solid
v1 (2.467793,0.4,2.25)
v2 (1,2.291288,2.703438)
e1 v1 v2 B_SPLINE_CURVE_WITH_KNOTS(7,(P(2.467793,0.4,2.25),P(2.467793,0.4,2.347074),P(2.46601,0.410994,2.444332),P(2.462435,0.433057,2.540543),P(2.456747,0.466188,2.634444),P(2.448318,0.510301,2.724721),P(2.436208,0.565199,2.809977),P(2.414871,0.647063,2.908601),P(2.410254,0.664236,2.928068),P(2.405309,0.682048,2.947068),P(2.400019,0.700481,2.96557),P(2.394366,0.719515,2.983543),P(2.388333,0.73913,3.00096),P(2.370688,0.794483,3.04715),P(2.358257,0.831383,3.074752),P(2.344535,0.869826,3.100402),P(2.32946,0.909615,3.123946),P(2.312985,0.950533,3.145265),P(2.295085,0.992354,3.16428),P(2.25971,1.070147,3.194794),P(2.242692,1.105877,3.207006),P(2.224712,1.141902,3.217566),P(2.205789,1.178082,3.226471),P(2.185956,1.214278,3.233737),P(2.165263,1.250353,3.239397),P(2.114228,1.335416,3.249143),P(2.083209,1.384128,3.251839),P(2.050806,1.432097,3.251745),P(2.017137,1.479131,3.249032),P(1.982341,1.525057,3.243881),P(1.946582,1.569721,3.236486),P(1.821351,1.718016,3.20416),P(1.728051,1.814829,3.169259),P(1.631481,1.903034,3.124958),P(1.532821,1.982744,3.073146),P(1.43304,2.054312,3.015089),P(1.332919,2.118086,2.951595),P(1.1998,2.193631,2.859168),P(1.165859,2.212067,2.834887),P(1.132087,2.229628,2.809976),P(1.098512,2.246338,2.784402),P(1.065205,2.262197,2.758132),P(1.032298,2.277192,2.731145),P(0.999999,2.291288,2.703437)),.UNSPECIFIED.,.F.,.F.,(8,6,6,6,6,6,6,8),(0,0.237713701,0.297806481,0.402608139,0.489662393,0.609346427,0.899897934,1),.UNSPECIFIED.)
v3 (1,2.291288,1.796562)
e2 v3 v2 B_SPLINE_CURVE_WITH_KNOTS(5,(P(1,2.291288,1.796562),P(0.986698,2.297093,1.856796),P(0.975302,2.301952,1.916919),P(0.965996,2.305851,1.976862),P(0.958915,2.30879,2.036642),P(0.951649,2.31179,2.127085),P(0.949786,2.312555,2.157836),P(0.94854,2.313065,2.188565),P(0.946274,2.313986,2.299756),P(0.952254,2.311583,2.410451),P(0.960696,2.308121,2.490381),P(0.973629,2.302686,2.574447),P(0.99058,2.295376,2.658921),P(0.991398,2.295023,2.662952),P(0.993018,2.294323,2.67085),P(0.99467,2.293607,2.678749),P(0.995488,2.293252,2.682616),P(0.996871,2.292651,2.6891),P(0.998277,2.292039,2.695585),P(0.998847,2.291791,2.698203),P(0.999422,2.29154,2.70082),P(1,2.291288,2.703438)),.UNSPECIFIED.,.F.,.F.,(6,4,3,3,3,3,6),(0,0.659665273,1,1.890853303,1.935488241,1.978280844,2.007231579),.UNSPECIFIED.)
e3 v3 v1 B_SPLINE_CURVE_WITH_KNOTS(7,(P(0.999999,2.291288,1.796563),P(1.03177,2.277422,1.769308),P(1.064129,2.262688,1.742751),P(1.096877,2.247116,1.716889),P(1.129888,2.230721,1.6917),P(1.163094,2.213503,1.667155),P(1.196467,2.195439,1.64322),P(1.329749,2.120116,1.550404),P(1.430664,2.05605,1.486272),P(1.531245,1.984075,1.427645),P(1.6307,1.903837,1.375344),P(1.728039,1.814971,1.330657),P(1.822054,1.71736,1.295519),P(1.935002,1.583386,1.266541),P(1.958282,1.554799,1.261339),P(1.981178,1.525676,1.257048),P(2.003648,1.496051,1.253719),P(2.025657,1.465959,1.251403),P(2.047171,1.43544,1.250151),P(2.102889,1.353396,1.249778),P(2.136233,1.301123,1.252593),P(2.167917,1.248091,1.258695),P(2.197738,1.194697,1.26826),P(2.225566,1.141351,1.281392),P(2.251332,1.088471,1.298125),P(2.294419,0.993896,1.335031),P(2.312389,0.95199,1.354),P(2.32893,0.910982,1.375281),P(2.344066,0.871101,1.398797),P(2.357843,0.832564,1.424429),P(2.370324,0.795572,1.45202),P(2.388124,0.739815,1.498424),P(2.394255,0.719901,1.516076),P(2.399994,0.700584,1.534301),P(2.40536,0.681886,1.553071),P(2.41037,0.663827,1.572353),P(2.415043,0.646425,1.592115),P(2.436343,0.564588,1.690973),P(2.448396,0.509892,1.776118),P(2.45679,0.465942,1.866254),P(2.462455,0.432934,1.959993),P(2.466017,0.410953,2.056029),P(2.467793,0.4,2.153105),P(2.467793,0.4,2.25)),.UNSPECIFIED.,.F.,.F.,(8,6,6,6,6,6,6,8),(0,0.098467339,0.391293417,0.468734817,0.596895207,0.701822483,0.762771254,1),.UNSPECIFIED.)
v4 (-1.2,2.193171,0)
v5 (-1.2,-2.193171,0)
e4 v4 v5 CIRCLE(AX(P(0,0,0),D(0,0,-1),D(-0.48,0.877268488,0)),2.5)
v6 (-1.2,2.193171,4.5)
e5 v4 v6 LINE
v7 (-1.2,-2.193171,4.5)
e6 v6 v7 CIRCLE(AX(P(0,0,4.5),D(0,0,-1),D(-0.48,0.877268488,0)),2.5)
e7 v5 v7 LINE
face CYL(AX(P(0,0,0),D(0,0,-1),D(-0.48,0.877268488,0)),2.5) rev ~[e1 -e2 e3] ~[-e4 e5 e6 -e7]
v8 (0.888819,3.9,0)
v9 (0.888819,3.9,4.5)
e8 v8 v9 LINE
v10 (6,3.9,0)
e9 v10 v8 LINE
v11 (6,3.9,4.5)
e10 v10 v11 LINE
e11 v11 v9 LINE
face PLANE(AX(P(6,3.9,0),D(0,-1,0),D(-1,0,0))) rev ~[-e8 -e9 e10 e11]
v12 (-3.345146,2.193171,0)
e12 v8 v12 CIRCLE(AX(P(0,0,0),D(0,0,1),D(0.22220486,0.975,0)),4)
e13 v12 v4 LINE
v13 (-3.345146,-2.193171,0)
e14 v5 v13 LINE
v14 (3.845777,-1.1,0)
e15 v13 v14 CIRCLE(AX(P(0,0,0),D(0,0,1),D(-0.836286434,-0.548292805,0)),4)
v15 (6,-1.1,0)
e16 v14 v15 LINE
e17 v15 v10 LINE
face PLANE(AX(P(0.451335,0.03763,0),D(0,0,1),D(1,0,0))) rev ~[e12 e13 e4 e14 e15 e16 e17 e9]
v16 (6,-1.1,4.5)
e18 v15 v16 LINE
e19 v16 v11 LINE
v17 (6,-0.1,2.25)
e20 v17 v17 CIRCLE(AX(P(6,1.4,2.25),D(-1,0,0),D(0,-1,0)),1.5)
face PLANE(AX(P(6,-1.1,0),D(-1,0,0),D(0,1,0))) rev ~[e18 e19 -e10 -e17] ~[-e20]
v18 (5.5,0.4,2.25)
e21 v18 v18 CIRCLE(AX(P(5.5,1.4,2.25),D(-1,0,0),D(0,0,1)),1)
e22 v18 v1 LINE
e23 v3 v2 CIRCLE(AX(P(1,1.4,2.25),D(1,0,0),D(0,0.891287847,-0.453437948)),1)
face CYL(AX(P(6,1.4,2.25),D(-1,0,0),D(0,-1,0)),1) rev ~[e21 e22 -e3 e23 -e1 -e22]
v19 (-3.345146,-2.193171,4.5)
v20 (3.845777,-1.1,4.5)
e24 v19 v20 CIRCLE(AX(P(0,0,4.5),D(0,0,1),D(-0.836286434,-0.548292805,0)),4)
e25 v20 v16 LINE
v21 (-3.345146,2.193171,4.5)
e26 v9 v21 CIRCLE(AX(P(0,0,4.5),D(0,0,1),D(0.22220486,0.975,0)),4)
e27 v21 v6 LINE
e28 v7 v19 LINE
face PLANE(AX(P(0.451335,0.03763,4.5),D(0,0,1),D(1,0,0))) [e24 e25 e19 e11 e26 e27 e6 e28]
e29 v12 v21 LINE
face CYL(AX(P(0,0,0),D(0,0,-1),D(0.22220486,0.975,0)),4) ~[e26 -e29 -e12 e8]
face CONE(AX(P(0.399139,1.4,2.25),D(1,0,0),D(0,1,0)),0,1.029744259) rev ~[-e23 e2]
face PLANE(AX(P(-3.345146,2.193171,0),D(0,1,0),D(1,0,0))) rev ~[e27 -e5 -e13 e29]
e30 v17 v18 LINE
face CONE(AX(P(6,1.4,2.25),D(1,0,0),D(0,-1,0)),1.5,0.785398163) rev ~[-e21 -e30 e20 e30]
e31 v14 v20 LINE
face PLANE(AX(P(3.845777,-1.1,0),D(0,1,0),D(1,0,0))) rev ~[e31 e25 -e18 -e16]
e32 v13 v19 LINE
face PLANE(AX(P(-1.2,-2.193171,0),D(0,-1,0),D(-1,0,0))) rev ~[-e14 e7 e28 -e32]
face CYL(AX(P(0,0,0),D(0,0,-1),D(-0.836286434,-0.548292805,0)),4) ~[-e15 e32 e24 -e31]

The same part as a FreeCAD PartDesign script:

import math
import FreeCAD as App
import Part
import Sketcher
from FreeCAD import Vector

doc = App.newDocument("Part")
body = doc.addObject("PartDesign::Body", "Body")

sketch1 = body.newObject("Sketcher::SketchObject", "Sketch")
sketch1.AttachmentSupport = (doc.getObject("XY_Plane"), [""])
sketch1.MapMode = "FlatFace"
sketch1.addGeometry([
    Part.ArcOfCircle(Part.Circle(Vector(0, 0, 0), Vector(0, 0, 1), 2.5), math.radians(-119), math.radians(119)),
    Part.LineSegment(Vector(-1.2, -2.2, 0), Vector(-3.3, -2.2, 0)),
    Part.ArcOfCircle(Part.Circle(Vector(0, 0, 0), Vector(0, 0, 1), 4), math.radians(-147), math.radians(-16)),
    Part.LineSegment(Vector(3.8, -1.1, 0), Vector(6, -1.1, 0)),
    Part.LineSegment(Vector(6, -1.1, 0), Vector(6, 3.9, 0)),
    Part.LineSegment(Vector(6, 3.9, 0), Vector(0.9, 3.9, 0)),
    Part.ArcOfCircle(Part.Circle(Vector(0, 0, 0), Vector(0, 0, 1), 4), math.radians(77), math.radians(147)),
    Part.LineSegment(Vector(-3.3, 2.2, 0), Vector(-1.2, 2.2, 0)),
], False)
sketch1.addConstraint([
    Sketcher.Constraint("Coincident", 0, 1, 1, 1),
    Sketcher.Constraint("Coincident", 1, 2, 2, 1),
    Sketcher.Constraint("Coincident", 2, 2, 3, 1),
    Sketcher.Constraint("Coincident", 3, 2, 4, 1),
    Sketcher.Constraint("Coincident", 4, 2, 5, 1),
    Sketcher.Constraint("Coincident", 5, 2, 6, 1),
    Sketcher.Constraint("Coincident", 6, 2, 7, 1),
    Sketcher.Constraint("Coincident", 7, 2, 0, 2),
    Sketcher.Constraint("Horizontal", 1),
    Sketcher.Constraint("Horizontal", 3),
    Sketcher.Constraint("Vertical", 4),
    Sketcher.Constraint("Horizontal", 5),
    Sketcher.Constraint("Horizontal", 7),
    Sketcher.Constraint("Coincident", 0, 3, -1, 1),
    Sketcher.Constraint("Coincident", 2, 3, -1, 1),
    Sketcher.Constraint("Coincident", 6, 3, -1, 1),
    Sketcher.Constraint("Equal", 2, 6),
    Sketcher.Constraint("Vertical", 1, 2, 6, 2),
    Sketcher.Constraint("Radius", 2, 4.0),
    Sketcher.Constraint("Radius", 0, 2.5),
    Sketcher.Constraint("DistanceY", 4, 1, 4, 2, 5.0),
    Sketcher.Constraint("DistanceX", -1, 1, 3, 2, 6.0),
    Sketcher.Constraint("DistanceX", 0, 1, -1, 1, 1.2),
    Sketcher.Constraint("DistanceY", 2, 2, -1, 1, 1.1),
])
pad1 = body.newObject("PartDesign::Pad", "Pad")
pad1.Profile = sketch1
pad1.Length = 4.5

sketch2 = body.newObject("Sketcher::SketchObject", "Sketch001")
sketch2.AttachmentSupport = (doc.getObject("YZ_Plane"), [""])
sketch2.MapMode = "FlatFace"
sketch2.AttachmentOffset = App.Placement(Vector(0, 0, 6), App.Rotation())
sketch2.addGeometry(Part.Circle(Vector(1.4, 2.2, 0), Vector(0, 0, 1), 1), False)
sketch2.addConstraint([
    Sketcher.Constraint("Diameter", 0, 2.0),
    Sketcher.Constraint("DistanceX", -1, 1, 0, 3, 1.4),
    Sketcher.Constraint("DistanceY", -1, 1, 0, 3, 2.25),
])
doc.recompute()
hole = body.newObject("PartDesign::Hole", "Hole")
hole.Profile = sketch2
hole.ThreadType = "None"
hole.Diameter = 2
hole.DepthType = "Dimension"
hole.Depth = 5
hole.DrillPoint = "Angled"
hole.DrillPointAngle = 118
hole.HoleCutType = "Countersink"
hole.HoleCutDiameter = 3
hole.HoleCutCountersinkAngle = 90

doc.recompute()
